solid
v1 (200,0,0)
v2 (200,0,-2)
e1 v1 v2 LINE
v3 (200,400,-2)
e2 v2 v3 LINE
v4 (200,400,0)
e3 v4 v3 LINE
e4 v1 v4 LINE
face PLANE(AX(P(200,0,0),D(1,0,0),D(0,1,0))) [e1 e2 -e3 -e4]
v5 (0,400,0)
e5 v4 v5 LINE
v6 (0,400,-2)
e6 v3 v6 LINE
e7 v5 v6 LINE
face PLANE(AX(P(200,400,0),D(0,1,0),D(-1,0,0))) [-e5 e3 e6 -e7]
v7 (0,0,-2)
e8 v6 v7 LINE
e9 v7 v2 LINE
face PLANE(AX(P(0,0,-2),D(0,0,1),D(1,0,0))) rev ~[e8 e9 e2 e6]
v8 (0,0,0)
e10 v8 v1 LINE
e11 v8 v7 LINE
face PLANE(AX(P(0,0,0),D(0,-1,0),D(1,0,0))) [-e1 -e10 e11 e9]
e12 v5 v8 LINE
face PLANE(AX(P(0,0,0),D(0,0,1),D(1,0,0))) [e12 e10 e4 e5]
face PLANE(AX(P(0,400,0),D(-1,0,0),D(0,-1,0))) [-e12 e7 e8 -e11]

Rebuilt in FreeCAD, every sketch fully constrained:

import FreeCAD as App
import Part
import Sketcher
Q = App.Units.Quantity


def add_polygon(sketch, points):
    """Adds a closed chain of lines whose ends are joined by coincident constraints."""
    first, n = sketch.GeometryCount, len(points)
    for a, b in zip(points, points[1:] + points[:1]):
        sketch.addGeometry(Part.LineSegment(App.Vector(*a, 0), App.Vector(*b, 0)), False)
    for i in range(n):
        sketch.addConstraint(Sketcher.Constraint("Coincident", first + i, 2, first + (i + 1) % n, 1))

doc = App.newDocument("Part")
body = doc.addObject("PartDesign::Body", "Body")

# Sketch on XY plane
sketch1 = doc.addObject("Sketcher::SketchObject", "Sketch")
body.addObject(sketch1)
sketch1.AttachmentSupport = (doc.XY_Plane, [""])
sketch1.MapMode = "FlatFace"
add_polygon(sketch1, [(0, 400), (0, 0), (200, 0), (200, 400)])  # lines 0-3
sketch1.addConstraint(Sketcher.Constraint("Vertical", 0))
sketch1.addConstraint(Sketcher.Constraint("Horizontal", 1))
sketch1.addConstraint(Sketcher.Constraint("Vertical", 2))
sketch1.addConstraint(Sketcher.Constraint("Horizontal", 3))
sketch1.addConstraint(Sketcher.Constraint("Coincident", 0, 2, -1, 1))
sketch1.addConstraint(Sketcher.Constraint("DistanceX", 1, 1, 1, 2, Q("200 mm")))
sketch1.addConstraint(Sketcher.Constraint("DistanceY", 0, 2, 0, 1, Q("400 mm")))
pad1 = doc.addObject("PartDesign::Pad", "Pad")
body.addObject(pad1)
pad1.Profile = sketch1
pad1.Length = 2
pad1.Reversed = True

doc.recompute()
